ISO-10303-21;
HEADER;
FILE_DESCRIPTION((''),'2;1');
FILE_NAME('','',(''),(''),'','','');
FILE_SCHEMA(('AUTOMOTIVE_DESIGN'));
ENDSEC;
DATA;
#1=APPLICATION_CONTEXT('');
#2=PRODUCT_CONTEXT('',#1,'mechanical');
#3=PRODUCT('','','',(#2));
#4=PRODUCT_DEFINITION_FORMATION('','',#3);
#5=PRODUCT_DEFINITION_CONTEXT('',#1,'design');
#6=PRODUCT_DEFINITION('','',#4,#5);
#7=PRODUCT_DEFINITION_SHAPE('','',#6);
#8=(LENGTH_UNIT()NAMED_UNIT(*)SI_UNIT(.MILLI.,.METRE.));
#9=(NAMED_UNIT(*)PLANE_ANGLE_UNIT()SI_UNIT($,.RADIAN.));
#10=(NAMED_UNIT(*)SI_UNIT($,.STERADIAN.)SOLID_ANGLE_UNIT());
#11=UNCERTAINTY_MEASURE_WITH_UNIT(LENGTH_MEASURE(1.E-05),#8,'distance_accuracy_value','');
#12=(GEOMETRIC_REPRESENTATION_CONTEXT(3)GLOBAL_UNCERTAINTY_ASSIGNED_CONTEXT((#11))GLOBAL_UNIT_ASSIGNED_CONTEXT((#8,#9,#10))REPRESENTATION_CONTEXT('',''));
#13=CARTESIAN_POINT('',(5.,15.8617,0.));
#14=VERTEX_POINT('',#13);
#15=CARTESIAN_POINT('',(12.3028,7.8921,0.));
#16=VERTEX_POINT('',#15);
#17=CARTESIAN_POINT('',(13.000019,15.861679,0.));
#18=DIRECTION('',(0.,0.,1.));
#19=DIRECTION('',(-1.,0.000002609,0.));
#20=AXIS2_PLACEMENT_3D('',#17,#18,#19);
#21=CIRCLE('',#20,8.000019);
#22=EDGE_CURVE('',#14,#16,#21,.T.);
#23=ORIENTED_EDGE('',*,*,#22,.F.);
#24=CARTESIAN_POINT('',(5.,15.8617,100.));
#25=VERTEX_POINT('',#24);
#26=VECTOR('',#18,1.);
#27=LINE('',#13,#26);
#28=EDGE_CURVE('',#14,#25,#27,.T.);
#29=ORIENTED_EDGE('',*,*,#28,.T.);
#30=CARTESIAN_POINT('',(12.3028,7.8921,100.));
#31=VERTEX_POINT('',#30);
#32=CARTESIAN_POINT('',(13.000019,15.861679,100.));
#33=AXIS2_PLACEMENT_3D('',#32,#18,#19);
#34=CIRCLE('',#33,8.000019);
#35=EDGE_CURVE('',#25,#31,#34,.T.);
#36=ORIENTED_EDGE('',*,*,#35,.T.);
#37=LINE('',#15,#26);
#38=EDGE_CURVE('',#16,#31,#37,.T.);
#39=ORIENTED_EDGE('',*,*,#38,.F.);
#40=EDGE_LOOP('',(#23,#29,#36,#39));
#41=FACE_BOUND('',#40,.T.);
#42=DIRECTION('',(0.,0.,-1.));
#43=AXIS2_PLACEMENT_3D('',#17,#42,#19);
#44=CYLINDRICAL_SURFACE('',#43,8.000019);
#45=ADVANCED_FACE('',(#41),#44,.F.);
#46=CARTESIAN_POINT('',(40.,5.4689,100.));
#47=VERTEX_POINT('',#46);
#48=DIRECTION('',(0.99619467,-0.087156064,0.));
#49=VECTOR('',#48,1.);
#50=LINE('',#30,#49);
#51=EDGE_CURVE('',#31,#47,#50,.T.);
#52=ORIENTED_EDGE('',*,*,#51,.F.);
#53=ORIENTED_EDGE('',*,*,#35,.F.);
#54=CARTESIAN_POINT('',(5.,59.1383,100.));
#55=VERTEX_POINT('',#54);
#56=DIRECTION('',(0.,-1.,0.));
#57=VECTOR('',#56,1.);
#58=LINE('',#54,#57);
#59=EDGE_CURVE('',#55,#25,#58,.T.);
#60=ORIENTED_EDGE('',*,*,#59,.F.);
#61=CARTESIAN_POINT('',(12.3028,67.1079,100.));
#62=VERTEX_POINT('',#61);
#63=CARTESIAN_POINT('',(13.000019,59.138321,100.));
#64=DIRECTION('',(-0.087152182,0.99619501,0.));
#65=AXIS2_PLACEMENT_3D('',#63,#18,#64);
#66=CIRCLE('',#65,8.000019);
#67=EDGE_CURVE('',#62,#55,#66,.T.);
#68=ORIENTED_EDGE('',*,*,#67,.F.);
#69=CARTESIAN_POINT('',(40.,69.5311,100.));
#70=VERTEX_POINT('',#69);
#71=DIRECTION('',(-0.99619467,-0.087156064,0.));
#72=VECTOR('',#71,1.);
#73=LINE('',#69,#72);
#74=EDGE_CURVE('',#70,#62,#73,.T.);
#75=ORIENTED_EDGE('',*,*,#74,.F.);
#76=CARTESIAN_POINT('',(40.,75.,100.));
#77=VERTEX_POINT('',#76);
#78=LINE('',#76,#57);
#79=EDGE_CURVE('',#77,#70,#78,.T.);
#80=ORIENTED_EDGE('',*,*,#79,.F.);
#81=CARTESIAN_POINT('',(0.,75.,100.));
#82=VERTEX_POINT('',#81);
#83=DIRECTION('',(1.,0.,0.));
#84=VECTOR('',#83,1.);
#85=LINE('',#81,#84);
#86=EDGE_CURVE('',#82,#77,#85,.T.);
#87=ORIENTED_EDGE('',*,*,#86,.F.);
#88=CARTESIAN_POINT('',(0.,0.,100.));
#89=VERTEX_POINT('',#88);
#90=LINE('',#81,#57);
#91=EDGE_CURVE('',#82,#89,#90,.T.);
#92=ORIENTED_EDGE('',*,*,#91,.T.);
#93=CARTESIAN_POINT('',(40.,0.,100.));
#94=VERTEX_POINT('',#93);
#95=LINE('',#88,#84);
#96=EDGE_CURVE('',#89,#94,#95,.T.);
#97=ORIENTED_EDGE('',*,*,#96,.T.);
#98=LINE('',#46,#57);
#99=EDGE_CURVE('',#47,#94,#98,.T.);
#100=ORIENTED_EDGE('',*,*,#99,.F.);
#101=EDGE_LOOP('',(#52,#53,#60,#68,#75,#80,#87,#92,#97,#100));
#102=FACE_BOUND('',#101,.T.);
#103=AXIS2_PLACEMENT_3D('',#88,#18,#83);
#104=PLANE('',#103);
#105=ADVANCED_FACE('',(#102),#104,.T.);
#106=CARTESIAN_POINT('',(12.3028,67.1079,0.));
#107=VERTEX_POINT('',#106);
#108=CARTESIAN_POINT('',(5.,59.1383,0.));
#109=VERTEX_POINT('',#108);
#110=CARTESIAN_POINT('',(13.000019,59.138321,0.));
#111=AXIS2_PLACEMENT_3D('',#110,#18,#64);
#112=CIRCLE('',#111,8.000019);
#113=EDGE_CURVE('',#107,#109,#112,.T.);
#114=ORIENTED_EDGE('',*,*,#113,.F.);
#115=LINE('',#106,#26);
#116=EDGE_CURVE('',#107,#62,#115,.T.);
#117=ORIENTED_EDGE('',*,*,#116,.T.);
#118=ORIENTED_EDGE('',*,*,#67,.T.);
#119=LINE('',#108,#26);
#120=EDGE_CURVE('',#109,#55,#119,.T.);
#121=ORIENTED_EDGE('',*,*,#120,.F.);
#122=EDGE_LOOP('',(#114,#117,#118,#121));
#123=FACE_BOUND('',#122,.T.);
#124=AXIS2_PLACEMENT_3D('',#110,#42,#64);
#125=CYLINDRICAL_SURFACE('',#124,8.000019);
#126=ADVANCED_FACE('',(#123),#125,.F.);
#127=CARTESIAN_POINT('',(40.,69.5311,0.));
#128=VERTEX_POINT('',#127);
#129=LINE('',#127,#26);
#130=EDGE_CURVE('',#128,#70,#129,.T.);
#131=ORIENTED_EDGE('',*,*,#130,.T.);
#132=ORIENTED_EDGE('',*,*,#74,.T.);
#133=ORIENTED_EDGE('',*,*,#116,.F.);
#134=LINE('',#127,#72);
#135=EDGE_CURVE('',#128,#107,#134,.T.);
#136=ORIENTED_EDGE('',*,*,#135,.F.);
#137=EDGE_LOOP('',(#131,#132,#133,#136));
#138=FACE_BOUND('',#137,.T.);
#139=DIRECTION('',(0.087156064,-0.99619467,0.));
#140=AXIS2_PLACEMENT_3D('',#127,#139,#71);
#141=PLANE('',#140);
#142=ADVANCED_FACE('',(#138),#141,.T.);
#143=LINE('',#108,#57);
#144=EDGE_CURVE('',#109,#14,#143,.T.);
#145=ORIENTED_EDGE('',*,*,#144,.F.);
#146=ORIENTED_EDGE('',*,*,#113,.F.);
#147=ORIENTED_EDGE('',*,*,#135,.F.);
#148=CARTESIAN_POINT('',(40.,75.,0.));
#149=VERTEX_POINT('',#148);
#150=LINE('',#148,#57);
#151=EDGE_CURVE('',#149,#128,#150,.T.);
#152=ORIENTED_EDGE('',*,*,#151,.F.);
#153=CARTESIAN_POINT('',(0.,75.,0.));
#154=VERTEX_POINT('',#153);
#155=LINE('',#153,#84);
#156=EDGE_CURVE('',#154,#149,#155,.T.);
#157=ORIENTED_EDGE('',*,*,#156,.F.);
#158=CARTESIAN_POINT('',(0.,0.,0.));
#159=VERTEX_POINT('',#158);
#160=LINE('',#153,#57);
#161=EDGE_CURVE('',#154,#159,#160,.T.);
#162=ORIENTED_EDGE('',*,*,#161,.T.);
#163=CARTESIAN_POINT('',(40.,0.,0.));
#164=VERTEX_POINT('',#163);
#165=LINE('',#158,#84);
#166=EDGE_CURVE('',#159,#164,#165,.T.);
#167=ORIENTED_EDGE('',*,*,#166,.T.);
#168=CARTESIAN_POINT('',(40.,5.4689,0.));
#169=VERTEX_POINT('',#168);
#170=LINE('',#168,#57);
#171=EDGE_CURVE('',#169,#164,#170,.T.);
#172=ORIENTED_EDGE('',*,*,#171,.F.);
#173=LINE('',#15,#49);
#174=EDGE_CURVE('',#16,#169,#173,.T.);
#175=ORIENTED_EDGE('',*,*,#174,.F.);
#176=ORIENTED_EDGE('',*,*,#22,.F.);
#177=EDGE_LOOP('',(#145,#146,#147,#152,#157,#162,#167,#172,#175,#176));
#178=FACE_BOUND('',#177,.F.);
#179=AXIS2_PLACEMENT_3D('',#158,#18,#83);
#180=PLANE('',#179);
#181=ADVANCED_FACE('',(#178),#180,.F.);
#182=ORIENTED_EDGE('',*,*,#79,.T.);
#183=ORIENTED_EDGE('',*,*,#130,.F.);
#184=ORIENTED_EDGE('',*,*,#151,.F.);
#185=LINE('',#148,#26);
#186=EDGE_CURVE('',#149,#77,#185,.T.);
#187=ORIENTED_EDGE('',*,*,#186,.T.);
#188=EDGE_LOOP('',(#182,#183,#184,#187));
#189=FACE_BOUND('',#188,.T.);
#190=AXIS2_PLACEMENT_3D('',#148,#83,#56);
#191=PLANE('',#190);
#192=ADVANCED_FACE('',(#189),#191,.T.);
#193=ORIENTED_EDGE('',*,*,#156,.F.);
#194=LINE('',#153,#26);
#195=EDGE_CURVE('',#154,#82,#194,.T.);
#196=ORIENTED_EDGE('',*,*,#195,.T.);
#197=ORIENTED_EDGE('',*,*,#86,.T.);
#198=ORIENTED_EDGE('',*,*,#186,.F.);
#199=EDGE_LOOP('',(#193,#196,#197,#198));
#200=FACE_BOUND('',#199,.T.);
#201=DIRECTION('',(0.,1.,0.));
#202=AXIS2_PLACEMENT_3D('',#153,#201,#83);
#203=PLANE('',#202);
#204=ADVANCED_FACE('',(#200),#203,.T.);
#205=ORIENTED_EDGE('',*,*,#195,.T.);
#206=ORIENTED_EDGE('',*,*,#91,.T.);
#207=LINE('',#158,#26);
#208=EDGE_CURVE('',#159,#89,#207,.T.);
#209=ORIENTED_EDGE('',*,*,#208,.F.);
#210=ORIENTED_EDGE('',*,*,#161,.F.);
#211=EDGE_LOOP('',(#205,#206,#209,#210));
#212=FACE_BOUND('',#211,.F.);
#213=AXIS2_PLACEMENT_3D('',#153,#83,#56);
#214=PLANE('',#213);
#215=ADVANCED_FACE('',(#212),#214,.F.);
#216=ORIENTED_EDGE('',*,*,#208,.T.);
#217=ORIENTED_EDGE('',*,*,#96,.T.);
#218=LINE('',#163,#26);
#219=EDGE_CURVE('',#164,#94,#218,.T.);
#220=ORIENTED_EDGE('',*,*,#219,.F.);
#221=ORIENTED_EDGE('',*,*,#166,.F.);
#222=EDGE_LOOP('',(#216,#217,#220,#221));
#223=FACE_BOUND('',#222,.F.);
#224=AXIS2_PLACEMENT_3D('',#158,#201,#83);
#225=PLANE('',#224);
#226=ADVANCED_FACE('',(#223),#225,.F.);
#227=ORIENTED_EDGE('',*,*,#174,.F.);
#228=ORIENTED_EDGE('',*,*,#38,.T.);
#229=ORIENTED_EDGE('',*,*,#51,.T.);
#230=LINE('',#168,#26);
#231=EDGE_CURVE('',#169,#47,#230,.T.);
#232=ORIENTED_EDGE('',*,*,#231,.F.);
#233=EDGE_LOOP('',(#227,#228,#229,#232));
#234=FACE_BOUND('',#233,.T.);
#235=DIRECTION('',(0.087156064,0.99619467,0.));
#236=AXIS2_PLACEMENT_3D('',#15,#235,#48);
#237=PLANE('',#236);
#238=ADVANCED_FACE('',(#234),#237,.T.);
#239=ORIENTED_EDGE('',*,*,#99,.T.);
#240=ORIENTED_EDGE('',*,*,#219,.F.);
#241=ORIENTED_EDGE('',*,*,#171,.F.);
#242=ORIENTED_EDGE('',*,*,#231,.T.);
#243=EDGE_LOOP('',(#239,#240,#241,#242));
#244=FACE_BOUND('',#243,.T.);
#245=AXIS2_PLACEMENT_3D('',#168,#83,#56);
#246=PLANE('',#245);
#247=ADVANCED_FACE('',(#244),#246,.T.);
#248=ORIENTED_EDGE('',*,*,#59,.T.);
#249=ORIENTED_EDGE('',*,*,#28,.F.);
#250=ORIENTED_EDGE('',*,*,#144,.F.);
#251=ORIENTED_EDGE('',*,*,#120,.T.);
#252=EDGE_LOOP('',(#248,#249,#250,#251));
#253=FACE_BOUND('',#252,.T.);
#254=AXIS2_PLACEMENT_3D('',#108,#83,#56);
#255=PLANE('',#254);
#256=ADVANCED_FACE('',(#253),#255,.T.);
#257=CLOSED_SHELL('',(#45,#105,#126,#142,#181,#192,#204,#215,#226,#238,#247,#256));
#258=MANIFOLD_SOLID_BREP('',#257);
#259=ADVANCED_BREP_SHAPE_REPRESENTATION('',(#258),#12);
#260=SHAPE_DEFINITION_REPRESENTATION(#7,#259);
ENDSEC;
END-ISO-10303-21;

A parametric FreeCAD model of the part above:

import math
import FreeCAD as App
import Part
import Sketcher
from FreeCAD import Vector
Q = App.Units.Quantity

doc = App.newDocument("Part")
body = doc.addObject("PartDesign::Body", "Body")

# Sketch on XY plane
sketch1 = body.newObject("Sketcher::SketchObject", "Sketch")
sketch1.AttachmentSupport = (doc.getObject("XY_Plane"), [""])
sketch1.MapMode = "FlatFace"
sketch1.addGeometry([
    Part.LineSegment(Vector(40, 75, 0), Vector(0, 75, 0)),  # 0
    Part.LineSegment(Vector(0, 75, 0), Vector(0, 0, 0)),  # 1
    Part.LineSegment(Vector(0, 0, 0), Vector(40, 0, 0)),  # 2
    Part.LineSegment(Vector(40, 0, 0), Vector(40, 5, 0)),  # 3
    Part.LineSegment(Vector(40, 5, 0), Vector(12, 8, 0)),  # 4
    Part.ArcOfCircle(Part.Circle(Vector(13, 16, 0), Vector(0, 0, 1), 8), math.radians(180), math.radians(265)),  # 5
    Part.LineSegment(Vector(5, 16, 0), Vector(5, 59, 0)),  # 6
    Part.ArcOfCircle(Part.Circle(Vector(13, 59, 0), Vector(0, 0, 1), 8), math.radians(95), math.radians(180)),  # 7
    Part.LineSegment(Vector(12, 67, 0), Vector(40, 70, 0)),  # 8
    Part.LineSegment(Vector(40, 70, 0), Vector(40, 75, 0)),  # 9
], False)
sketch1.addConstraint([
    Sketcher.Constraint("Coincident", 0, 2, 1, 1),
    Sketcher.Constraint("Coincident", 1, 2, 2, 1),
    Sketcher.Constraint("Coincident", 2, 2, 3, 1),
    Sketcher.Constraint("Coincident", 3, 2, 4, 1),
    Sketcher.Constraint("Tangent", 4, 2, 5, 2),
    Sketcher.Constraint("Tangent", 5, 1, 6, 1),
    Sketcher.Constraint("Tangent", 6, 2, 7, 2),
    Sketcher.Constraint("Tangent", 7, 1, 8, 1),
    Sketcher.Constraint("Coincident", 8, 2, 9, 1),
    Sketcher.Constraint("Coincident", 9, 2, 0, 1),
    Sketcher.Constraint("Horizontal", 0),
    Sketcher.Constraint("Vertical", 1),
    Sketcher.Constraint("Horizontal", 2),
    Sketcher.Constraint("Vertical", 3),
    Sketcher.Constraint("Vertical", 6),
    Sketcher.Constraint("Vertical", 9),
    Sketcher.Constraint("Coincident", 1, 2, -1, 1),
    Sketcher.Constraint("Equal", 5, 7),
    Sketcher.Constraint("Vertical", 4, 2, 7, 1),
    Sketcher.Constraint("Vertical", 3, 2, 8, 2),
    Sketcher.Constraint("Equal", 3, 9),
    Sketcher.Constraint("Radius", 5, 8.0),
    Sketcher.Constraint("DistanceX", 0, 2, 0, 1, 40.0),
    Sketcher.Constraint("DistanceY", 1, 2, 1, 1, 75.0),
    Sketcher.Constraint("Angle", 4, Q("175 deg")),
    Sketcher.Constraint("DistanceX", -1, 1, 5, 3, 13.0),
    Sketcher.Constraint("DistanceY", 3, 1, 3, 2, 5.469),
])
pad1 = body.newObject("PartDesign::Pad", "Pad")
pad1.Profile = sketch1
pad1.Length = 100

doc.recompute()
